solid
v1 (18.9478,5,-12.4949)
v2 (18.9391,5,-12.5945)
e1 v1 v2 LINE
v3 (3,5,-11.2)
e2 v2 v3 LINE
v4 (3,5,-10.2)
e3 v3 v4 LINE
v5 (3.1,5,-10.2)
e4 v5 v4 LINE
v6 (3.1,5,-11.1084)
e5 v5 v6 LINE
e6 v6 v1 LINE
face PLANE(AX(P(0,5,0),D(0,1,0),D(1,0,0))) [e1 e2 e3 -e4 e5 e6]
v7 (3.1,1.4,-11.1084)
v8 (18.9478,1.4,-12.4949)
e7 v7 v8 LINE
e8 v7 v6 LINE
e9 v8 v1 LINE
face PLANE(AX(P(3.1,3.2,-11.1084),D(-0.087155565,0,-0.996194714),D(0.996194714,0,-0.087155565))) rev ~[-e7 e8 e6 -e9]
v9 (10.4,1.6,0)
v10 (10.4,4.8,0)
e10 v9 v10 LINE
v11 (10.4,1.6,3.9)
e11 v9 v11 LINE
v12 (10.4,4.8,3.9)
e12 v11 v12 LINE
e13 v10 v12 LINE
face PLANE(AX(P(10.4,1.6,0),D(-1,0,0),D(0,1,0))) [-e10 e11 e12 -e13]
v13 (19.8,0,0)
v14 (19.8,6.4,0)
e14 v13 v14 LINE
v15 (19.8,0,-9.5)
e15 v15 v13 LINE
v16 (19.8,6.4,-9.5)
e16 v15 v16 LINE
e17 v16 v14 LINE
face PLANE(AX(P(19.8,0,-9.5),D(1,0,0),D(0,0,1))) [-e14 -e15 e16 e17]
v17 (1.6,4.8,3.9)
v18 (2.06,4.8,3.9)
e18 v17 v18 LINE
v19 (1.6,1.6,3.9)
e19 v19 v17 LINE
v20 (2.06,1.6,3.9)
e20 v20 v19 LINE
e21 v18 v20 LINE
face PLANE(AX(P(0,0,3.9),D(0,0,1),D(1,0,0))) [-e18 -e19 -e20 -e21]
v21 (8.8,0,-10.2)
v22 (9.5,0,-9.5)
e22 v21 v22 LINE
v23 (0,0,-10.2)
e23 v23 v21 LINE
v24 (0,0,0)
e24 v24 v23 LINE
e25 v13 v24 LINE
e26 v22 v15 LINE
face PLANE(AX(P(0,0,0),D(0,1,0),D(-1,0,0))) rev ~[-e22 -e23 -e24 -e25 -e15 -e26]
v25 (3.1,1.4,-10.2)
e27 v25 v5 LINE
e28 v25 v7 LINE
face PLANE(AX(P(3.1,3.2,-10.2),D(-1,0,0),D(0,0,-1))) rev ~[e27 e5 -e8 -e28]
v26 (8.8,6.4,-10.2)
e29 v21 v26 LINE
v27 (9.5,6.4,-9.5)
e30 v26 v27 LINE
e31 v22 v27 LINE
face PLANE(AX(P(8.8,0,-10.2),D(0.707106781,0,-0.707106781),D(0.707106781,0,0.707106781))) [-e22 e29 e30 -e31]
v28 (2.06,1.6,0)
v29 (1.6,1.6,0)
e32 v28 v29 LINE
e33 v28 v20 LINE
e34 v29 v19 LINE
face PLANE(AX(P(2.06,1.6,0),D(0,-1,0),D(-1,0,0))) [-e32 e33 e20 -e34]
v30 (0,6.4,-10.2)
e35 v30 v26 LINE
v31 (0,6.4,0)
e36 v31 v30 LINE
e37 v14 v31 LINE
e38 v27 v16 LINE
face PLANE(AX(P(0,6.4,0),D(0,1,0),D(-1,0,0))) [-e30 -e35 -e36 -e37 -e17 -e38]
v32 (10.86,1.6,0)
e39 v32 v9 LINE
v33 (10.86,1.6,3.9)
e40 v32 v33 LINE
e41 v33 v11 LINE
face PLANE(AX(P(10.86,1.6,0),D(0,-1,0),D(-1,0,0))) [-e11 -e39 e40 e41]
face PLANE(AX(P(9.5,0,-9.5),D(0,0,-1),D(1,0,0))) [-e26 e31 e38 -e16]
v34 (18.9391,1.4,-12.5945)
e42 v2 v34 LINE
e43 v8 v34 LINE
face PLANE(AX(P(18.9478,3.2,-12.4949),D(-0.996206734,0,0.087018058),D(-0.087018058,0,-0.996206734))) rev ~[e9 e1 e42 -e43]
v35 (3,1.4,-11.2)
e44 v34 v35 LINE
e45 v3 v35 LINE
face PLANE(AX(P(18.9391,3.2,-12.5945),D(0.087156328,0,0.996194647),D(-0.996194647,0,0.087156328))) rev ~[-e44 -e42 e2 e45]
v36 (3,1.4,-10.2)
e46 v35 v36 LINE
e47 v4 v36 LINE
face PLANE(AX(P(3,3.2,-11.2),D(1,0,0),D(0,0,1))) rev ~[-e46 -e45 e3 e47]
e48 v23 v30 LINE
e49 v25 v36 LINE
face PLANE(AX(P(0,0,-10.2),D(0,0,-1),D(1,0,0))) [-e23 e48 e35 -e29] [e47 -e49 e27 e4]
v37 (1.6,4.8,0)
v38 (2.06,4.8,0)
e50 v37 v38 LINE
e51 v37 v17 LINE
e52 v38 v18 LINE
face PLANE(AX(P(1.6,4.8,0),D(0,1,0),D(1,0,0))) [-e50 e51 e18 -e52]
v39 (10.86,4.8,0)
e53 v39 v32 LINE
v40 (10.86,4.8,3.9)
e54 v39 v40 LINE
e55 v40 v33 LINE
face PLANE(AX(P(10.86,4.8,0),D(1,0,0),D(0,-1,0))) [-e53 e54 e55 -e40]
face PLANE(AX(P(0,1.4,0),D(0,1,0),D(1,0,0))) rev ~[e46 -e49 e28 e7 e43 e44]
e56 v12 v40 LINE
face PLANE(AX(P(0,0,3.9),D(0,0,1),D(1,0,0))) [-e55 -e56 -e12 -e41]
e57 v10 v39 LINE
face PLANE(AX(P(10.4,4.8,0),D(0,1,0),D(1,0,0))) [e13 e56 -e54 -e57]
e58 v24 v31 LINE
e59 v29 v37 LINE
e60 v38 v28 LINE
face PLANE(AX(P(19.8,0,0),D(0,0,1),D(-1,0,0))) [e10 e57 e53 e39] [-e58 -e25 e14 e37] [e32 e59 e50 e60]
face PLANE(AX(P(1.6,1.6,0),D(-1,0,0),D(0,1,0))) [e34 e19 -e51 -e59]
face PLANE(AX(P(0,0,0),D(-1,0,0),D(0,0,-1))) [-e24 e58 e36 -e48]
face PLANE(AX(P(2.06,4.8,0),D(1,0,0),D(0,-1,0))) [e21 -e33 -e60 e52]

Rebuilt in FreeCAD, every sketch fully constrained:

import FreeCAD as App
import Part
import Sketcher
from FreeCAD import Vector
Q = App.Units.Quantity

doc = App.newDocument("Part")
params = doc.addObject("Spreadsheet::Sheet", "Params")
for row, (alias, value) in enumerate([
    ("sketch1_width", "19.8 mm"),
    ("sketch1_width2", "8.8 mm"),
    ("sketch1_height", "10.2 mm"),
    ("sketch1_height2", "9.5 mm"),
    ("pad1_length", "6.4 mm"),
    ("sketch2_height", "3.2 mm"),
    ("sketch2_width", "0.46 mm"),
    ("pad2_length", "3.9 mm"),
    ("sketch3_height", "1 mm"),
    ("sketch3_length", "16 mm"),
    ("sketch3_width", "0.1 mm"),
    ("sketch3_length2", "0.1 mm"),
    ("pad3_length", "3.6 mm"),
], start=1):
    params.set(f"A{row}", alias)
    params.set(f"B{row}", "=" + value)
    params.setAlias(f"B{row}", alias)

body = doc.addObject("PartDesign::Body", "Body")

sketch1 = doc.addObject("Sketcher::SketchObject", "Sketch")
body.addObject(sketch1)
sketch1.AttachmentSupport = (doc.XZ_Plane, [""])
sketch1.MapMode = "FlatFace"
sketch1.addGeometry([
    Part.LineSegment(Vector(0, -10.2, 0), Vector(0, 0, 0)),
    Part.LineSegment(Vector(0, 0, 0), Vector(19.8, 0, 0)),
    Part.LineSegment(Vector(19.8, 0, 0), Vector(19.8, -9.5, 0)),
    Part.LineSegment(Vector(19.8, -9.5, 0), Vector(9.5, -9.5, 0)),
    Part.LineSegment(Vector(9.5, -9.5, 0), Vector(8.8, -10.2, 0)),
    Part.LineSegment(Vector(8.8, -10.2, 0), Vector(0, -10.2, 0)),
], False)
sketch1.addConstraint([
    Sketcher.Constraint("Coincident", 0, 2, 1, 1),
    Sketcher.Constraint("Coincident", 1, 2, 2, 1),
    Sketcher.Constraint("Coincident", 2, 2, 3, 1),
    Sketcher.Constraint("Coincident", 3, 2, 4, 1),
    Sketcher.Constraint("Coincident", 4, 2, 5, 1),
    Sketcher.Constraint("Coincident", 5, 2, 0, 1),
    Sketcher.Constraint("Vertical", 0),
    Sketcher.Constraint("Horizontal", 1),
    Sketcher.Constraint("Vertical", 2),
    Sketcher.Constraint("Horizontal", 3),
    Sketcher.Constraint("Horizontal", 5),
    Sketcher.Constraint("Coincident", 0, 2, -1, 1),
    Sketcher.Constraint("Angle", 4, Q("-135 deg")),
    Sketcher.Constraint("DistanceX", 1, 1, 1, 2, 19.8),
    Sketcher.Constraint("DistanceX", 5, 2, 5, 1, 8.8),
    Sketcher.Constraint("DistanceY", 0, 1, 0, 2, 10.2),
    Sketcher.Constraint("DistanceY", 2, 2, 2, 1, 9.5),
])
sketch1.setExpression("Constraints[13]", "Params.sketch1_width")
sketch1.setExpression("Constraints[14]", "Params.sketch1_width2")
sketch1.setExpression("Constraints[15]", "Params.sketch1_height")
sketch1.setExpression("Constraints[16]", "Params.sketch1_height2")
pad1 = doc.addObject("PartDesign::Pad", "Pad")
body.addObject(pad1)
pad1.Profile = sketch1
pad1.setExpression("Length", "Params.pad1_length")
pad1.Reversed = True

sketch2 = doc.addObject("Sketcher::SketchObject", "Sketch001")
body.addObject(sketch2)
sketch2.AttachmentSupport = (doc.XY_Plane, [""])
sketch2.MapMode = "FlatFace"
sketch2.addGeometry([
    Part.LineSegment(Vector(2.06, 4.8, 0), Vector(1.6, 4.8, 0)),
    Part.LineSegment(Vector(1.6, 4.8, 0), Vector(1.6, 1.6, 0)),
    Part.LineSegment(Vector(1.6, 1.6, 0), Vector(2.06, 1.6, 0)),
    Part.LineSegment(Vector(2.06, 1.6, 0), Vector(2.06, 4.8, 0)),
    Part.LineSegment(Vector(10.86, 4.8, 0), Vector(10.4, 4.8, 0)),
    Part.LineSegment(Vector(10.4, 4.8, 0), Vector(10.4, 1.6, 0)),
    Part.LineSegment(Vector(10.4, 1.6, 0), Vector(10.86, 1.6, 0)),
    Part.LineSegment(Vector(10.86, 1.6, 0), Vector(10.86, 4.8, 0)),
], False)
sketch2.addConstraint([
    Sketcher.Constraint("Coincident", 0, 2, 1, 1),
    Sketcher.Constraint("Coincident", 1, 2, 2, 1),
    Sketcher.Constraint("Coincident", 2, 2, 3, 1),
    Sketcher.Constraint("Coincident", 3, 2, 0, 1),
    Sketcher.Constraint("Coincident", 4, 2, 5, 1),
    Sketcher.Constraint("Coincident", 5, 2, 6, 1),
    Sketcher.Constraint("Coincident", 6, 2, 7, 1),
    Sketcher.Constraint("Coincident", 7, 2, 4, 1),
    Sketcher.Constraint("Horizontal", 0),
    Sketcher.Constraint("Vertical", 1),
    Sketcher.Constraint("Horizontal", 2),
    Sketcher.Constraint("Vertical", 3),
    Sketcher.Constraint("Horizontal", 4),
    Sketcher.Constraint("Vertical", 5),
    Sketcher.Constraint("Horizontal", 6),
    Sketcher.Constraint("Vertical", 7),
    Sketcher.Constraint("Horizontal", 3, 2, 4, 2),
    Sketcher.Constraint("Horizontal", 2, 2, 5, 2),
    Sketcher.Constraint("Equal", 2, 4),
    Sketcher.Constraint("DistanceY", 1, 2, 1, 1, 3.2),
    Sketcher.Constraint("DistanceX", 0, 2, 0, 1, 0.46),
    Sketcher.Constraint("DistanceX", -1, 1, 0, 2, 1.6),
    Sketcher.Constraint("DistanceY", -1, 1, 1, 2, 1.6),
    Sketcher.Constraint("DistanceX", 0, 2, 4, 2, 8.8),
])
sketch2.setExpression("Constraints[19]", "Params.sketch2_height")
sketch2.setExpression("Constraints[20]", "Params.sketch2_width")
pad2 = doc.addObject("PartDesign::Pad", "Pad001")
body.addObject(pad2)
pad2.Profile = sketch2
pad2.setExpression("Length", "Params.pad2_length")

sketch3 = doc.addObject("Sketcher::SketchObject", "Sketch002")
body.addObject(sketch3)
sketch3.AttachmentSupport = (doc.XZ_Plane, [""])
sketch3.MapMode = "FlatFace"
sketch3.AttachmentOffset = App.Placement(Vector(0, 0, -3.2), App.Rotation())
sketch3.addGeometry([
    Part.LineSegment(Vector(3, -10.2, 0), Vector(3.1, -10.2, 0)),
    Part.LineSegment(Vector(3.1, -10.2, 0), Vector(3.1, -11.11, 0)),
    Part.LineSegment(Vector(3.1, -11.11, 0), Vector(18.95, -12.49, 0)),
    Part.LineSegment(Vector(18.95, -12.49, 0), Vector(18.94, -12.59, 0)),
    Part.LineSegment(Vector(18.94, -12.59, 0), Vector(3, -11.2, 0)),
    Part.LineSegment(Vector(3, -11.2, 0), Vector(3, -10.2, 0)),
], False)
sketch3.addConstraint([
    Sketcher.Constraint("Coincident", 0, 2, 1, 1),
    Sketcher.Constraint("Coincident", 1, 2, 2, 1),
    Sketcher.Constraint("Coincident", 2, 2, 3, 1),
    Sketcher.Constraint("Coincident", 3, 2, 4, 1),
    Sketcher.Constraint("Coincident", 4, 2, 5, 1),
    Sketcher.Constraint("Coincident", 5, 2, 0, 1),
    Sketcher.Constraint("Horizontal", 0),
    Sketcher.Constraint("Vertical", 1),
    Sketcher.Constraint("Vertical", 5),
    Sketcher.Constraint("Perpendicular", 2, 3),
    Sketcher.Constraint("Perpendicular", 3, 4),
    Sketcher.Constraint("DistanceY", 5, 1, 5, 2, 1.0),
    Sketcher.Constraint("Distance", 4, 16.0),
    Sketcher.Constraint("DistanceX", 0, 1, 0, 2, 0.1),
    Sketcher.Constraint("DistanceX", -1, 1, 4, 2, 3.0),
    Sketcher.Constraint("Distance", 3, 0.1),
    Sketcher.Constraint("Angle", 2, Q("-5 deg")),
    Sketcher.Constraint("DistanceY", 0, 2, -1, 1, 10.2),
])
sketch3.setExpression("Constraints[11]", "Params.sketch3_height")
sketch3.setExpression("Constraints[12]", "Params.sketch3_length")
sketch3.setExpression("Constraints[13]", "Params.sketch3_width")
sketch3.setExpression("Constraints[15]", "Params.sketch3_length2")
pad3 = doc.addObject("PartDesign::Pad", "Pad002")
body.addObject(pad3)
pad3.Profile = sketch3
pad3.setExpression("Length", "Params.pad3_length")
pad3.Midplane = True

doc.recompute()
